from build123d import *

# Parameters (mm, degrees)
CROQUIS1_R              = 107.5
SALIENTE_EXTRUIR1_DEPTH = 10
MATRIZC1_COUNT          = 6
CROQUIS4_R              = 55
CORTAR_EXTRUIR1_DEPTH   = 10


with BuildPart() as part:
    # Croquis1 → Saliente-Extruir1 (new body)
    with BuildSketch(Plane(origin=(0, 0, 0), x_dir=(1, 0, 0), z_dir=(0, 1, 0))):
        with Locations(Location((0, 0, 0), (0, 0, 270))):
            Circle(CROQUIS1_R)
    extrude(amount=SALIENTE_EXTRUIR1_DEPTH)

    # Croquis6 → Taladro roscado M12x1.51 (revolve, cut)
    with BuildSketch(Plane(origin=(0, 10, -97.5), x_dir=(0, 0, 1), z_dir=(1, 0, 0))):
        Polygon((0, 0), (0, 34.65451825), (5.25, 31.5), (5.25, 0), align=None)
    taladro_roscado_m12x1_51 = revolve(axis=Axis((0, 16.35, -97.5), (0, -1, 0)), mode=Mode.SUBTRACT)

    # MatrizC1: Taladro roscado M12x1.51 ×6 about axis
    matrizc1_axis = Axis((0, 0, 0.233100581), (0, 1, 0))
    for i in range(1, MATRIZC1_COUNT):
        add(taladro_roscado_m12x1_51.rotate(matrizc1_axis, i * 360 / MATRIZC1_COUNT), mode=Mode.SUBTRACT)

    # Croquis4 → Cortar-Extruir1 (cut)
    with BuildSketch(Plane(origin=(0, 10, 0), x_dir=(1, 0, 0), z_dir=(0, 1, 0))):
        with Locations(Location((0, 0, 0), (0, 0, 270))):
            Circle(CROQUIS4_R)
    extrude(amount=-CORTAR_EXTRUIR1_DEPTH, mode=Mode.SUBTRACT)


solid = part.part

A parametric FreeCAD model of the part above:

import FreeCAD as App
import Part
import Sketcher
from FreeCAD import Vector
Q = App.Units.Quantity

doc = App.newDocument("Part")
body = doc.addObject("PartDesign::Body", "Body")

sketch1 = doc.addObject("Sketcher::SketchObject", "Sketch")
body.addObject(sketch1)
sketch1.AttachmentSupport = (doc.XZ_Plane, [""])
sketch1.MapMode = "FlatFace"
sketch1.addGeometry(Part.Circle(Vector(0, 0, 0), Vector(0, 0, 1), 108), False)
sketch1.addConstraint(Sketcher.Constraint("Coincident", 0, 3, -1, 1))
sketch1.addConstraint(Sketcher.Constraint("Diameter", 0, Q("215 mm")))
pad1 = doc.addObject("PartDesign::Pad", "Pad")
body.addObject(pad1)
pad1.Profile = sketch1
pad1.Length = 10
pad1.Reversed = True

sketch2 = doc.addObject("Sketcher::SketchObject", "Sketch001")
body.addObject(sketch2)
sketch2.AttachmentSupport = (doc.YZ_Plane, [""])
sketch2.MapMode = "FlatFace"
sketch2.addGeometry(Part.LineSegment(Vector(-25, -98, 0), Vector(10, -98, 0)), False)
sketch2.addGeometry(Part.LineSegment(Vector(10, -98, 0), Vector(10, -92, 0)), False)
sketch2.addGeometry(Part.LineSegment(Vector(10, -92, 0), Vector(-22, -92, 0)), False)
sketch2.addGeometry(Part.LineSegment(Vector(-22, -92, 0), Vector(-25, -98, 0)), False)
sketch2.addGeometry(Part.LineSegment(Vector(10, -98, 0), Vector(-25, -98, 0)), True)
sketch2.addConstraint(Sketcher.Constraint("Coincident", 0, 2, 1, 1))
sketch2.addConstraint(Sketcher.Constraint("Coincident", 1, 2, 2, 1))
sketch2.addConstraint(Sketcher.Constraint("Coincident", 2, 2, 3, 1))
sketch2.addConstraint(Sketcher.Constraint("Coincident", 3, 2, 0, 1))
sketch2.addConstraint(Sketcher.Constraint("Horizontal", 0))
sketch2.addConstraint(Sketcher.Constraint("Vertical", 1))
sketch2.addConstraint(Sketcher.Constraint("Horizontal", 2))
sketch2.addConstraint(Sketcher.Constraint("Horizontal", 4))
sketch2.addConstraint(Sketcher.Constraint("Coincident", 4, 1, 0, 2))
sketch2.addConstraint(Sketcher.Constraint("Equal", 0, 4))
sketch2.addConstraint(Sketcher.Constraint("Angle", 3, Q("-121 deg")))
sketch2.addConstraint(Sketcher.Constraint("DistanceX", 2, 2, 2, 1, Q("31.5 mm")))
sketch2.addConstraint(Sketcher.Constraint("DistanceX", -1, 1, 0, 2, Q("10 mm")))
sketch2.addConstraint(Sketcher.Constraint("DistanceY", 1, 1, 1, 2, Q("5.25 mm")))
sketch2.addConstraint(Sketcher.Constraint("DistanceY", 0, 2, -1, 1, Q("97.5 mm")))
groove = doc.addObject("PartDesign::Groove", "Groove")
body.addObject(groove)
groove.Profile = sketch2
groove.ReferenceAxis = (sketch2, ["Axis0"])
groove.Angle = 360
doc.recompute()

datumline = doc.addObject("PartDesign::Line", "DatumLine")
body.addObject(datumline)
datumline.Placement = App.Placement(Vector(0, 0, 0.233101), App.Rotation(Vector(0, 0, 1), Vector(0, 1, 0)))
polarpattern = doc.addObject("PartDesign::PolarPattern", "PolarPattern")
body.addObject(polarpattern)
polarpattern.Originals = [groove]
polarpattern.Axis = (datumline, [""])
polarpattern.Angle = 360
polarpattern.Occurrences = 6
body.Tip = polarpattern

sketch3 = doc.addObject("Sketcher::SketchObject", "Sketch002")
body.addObject(sketch3)
sketch3.AttachmentSupport = (doc.XZ_Plane, [""])
sketch3.MapMode = "FlatFace"
sketch3.AttachmentOffset = App.Placement(Vector(0, 0, -10), App.Rotation())
sketch3.addGeometry(Part.Circle(Vector(0, 0, 0), Vector(0, 0, 1), 55), False)
sketch3.addConstraint(Sketcher.Constraint("Coincident", 0, 3, -1, 1))
sketch3.addConstraint(Sketcher.Constraint("Diameter", 0, Q("110 mm")))
pocket1 = doc.addObject("PartDesign::Pocket", "Pocket")
body.addObject(pocket1)
pocket1.Profile = sketch3
pocket1.Length = 10
pocket1.Reversed = True

doc.recompute()
